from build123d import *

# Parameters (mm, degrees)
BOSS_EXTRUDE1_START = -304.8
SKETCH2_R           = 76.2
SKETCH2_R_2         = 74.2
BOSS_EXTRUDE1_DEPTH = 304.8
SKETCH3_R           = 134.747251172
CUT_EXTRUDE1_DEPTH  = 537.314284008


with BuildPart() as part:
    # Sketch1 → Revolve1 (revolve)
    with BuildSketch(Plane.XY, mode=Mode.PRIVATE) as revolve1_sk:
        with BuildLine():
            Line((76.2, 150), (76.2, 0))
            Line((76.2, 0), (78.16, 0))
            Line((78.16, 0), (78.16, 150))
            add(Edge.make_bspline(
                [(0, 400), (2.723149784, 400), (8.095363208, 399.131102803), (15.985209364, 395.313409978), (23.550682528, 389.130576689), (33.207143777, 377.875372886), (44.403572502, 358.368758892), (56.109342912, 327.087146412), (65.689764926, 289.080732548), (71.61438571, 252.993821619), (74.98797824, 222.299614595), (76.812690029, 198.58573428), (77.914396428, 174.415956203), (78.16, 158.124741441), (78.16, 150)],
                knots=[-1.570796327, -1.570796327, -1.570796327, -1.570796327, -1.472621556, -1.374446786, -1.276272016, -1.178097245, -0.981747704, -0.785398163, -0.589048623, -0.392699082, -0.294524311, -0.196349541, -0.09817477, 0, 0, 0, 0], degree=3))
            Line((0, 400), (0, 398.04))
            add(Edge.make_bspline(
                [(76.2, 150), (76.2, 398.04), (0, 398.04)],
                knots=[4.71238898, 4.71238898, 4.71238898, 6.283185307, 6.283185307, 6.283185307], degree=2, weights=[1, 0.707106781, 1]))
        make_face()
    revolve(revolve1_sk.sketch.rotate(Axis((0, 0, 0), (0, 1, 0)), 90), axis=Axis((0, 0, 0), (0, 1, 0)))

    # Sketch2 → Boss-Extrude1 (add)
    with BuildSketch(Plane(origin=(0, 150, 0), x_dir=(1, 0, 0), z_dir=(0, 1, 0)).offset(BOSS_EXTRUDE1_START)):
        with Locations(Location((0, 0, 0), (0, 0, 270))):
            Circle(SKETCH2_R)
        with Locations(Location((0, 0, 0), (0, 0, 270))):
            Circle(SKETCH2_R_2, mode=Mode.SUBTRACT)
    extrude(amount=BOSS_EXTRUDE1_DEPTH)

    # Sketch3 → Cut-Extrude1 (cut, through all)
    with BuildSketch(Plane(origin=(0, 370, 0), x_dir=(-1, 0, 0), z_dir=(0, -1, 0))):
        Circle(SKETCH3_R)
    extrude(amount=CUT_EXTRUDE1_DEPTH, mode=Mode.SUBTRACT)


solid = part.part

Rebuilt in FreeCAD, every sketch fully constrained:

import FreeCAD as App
import Part
import Sketcher

V = App.Vector
Q = App.Units.Quantity

doc = App.newDocument("Part")
params = doc.addObject("Spreadsheet::Sheet", "Params")
for row, (alias, value) in enumerate([
    ("revolution_angle", "360 deg"),
    ("sketch2_diameter", "152.4 mm"),
    ("sketch2_diameter2", "148.4 mm"),
    ("pad1_length", "304.8 mm"),
], start=1):
    params.set(f"A{row}", alias)
    params.set(f"B{row}", "=" + value)
    params.setAlias(f"B{row}", alias)

body = doc.addObject("PartDesign::Body", "Body")

sketch1 = body.newObject("Sketcher::SketchObject", "Sketch")
sketch1.AttachmentSupport = (doc.getObject("XY_Plane"), [""])
sketch1.MapMode = "FlatFace"
sketch1.addGeometry([
    Part.LineSegment(V(76.2, 150, 0), V(76.2, 0, 0)),
    Part.LineSegment(V(76.2, 0, 0), V(78.16, 0, 0)),
    Part.LineSegment(V(78.16, 0, 0), V(78.16, 150, 0)),
    Part.BSplineCurve([V(0, 400, 0), V(2.72315, 400, 0), V(8.095363, 399.131103, 0), V(15.985209, 395.31341, 0), V(23.550683, 389.130577, 0), V(33.207144, 377.875373, 0), V(44.403573, 358.368759, 0), V(56.109343, 327.087146, 0), V(65.689765, 289.080733, 0), V(71.614386, 252.993822, 0), V(74.987978, 222.299615, 0), V(76.81269, 198.585734, 0), V(77.914396, 174.415956, 0), V(78.16, 158.124741, 0), V(78.16, 150, 0)], [4, 1, 1, 1, 1, 1, 1, 1, 1, 1, 1, 1, 4], [-1.570796327, -1.472621556, -1.374446786, -1.276272016, -1.178097245, -0.981747704, -0.785398163, -0.589048623, -0.392699082, -0.294524311, -0.196349541, -0.09817477, 0], False, 3, [1, 1, 1, 1, 1, 1, 1, 1, 1, 1, 1, 1, 1, 1, 1], False),
    Part.LineSegment(V(0, 400, 0), V(0, 398.04, 0)),
    Part.BSplineCurve([V(76.2, 150, 0), V(76.2, 398.04, 0), V(0, 398.04, 0)], [3, 3], [4.71238898, 6.283185307], False, 2, [1, 0.707106781, 1], False),
], False)
sketch1.addConstraint([
    Sketcher.Constraint("Block", 3),
    Sketcher.Constraint("Block", 5),
    Sketcher.Constraint("Coincident", 0, 2, 1, 1),
    Sketcher.Constraint("Coincident", 1, 2, 2, 1),
    Sketcher.Constraint("Coincident", 2, 2, 3, 2),
    Sketcher.Constraint("Coincident", 3, 1, 4, 1),
    Sketcher.Constraint("Coincident", 4, 2, 5, 2),
    Sketcher.Constraint("Coincident", 5, 1, 0, 1),
    Sketcher.Constraint("Vertical", 0),
    Sketcher.Constraint("Horizontal", 1),
    Sketcher.Constraint("Vertical", 2),
    Sketcher.Constraint("PointOnObject", 0, 2, -1),
])
revolution = body.newObject("PartDesign::Revolution", "Revolution")
revolution.Profile = sketch1
revolution.ReferenceAxis = (sketch1, ["V_Axis"])
revolution.setExpression("Angle", "Params.revolution_angle")

sketch2 = body.newObject("Sketcher::SketchObject", "Sketch001")
sketch2.AttachmentSupport = (doc.getObject("XZ_Plane"), [""])
sketch2.MapMode = "FlatFace"
sketch2.AttachmentOffset = App.Placement(V(0, 0, 154.8), App.Rotation())
sketch2.addGeometry([
    Part.Circle(V(0, 0, 0), V(0, 0, 1), 76.2),
    Part.Circle(V(0, 0, 0), V(0, 0, 1), 74.2),
], False)
sketch2.addConstraint([
    Sketcher.Constraint("Coincident", 0, 3, -1, 1),
    Sketcher.Constraint("Coincident", 1, 3, -1, 1),
    Sketcher.Constraint("Diameter", 0, Q("152.4 mm")),
    Sketcher.Constraint("Diameter", 1, Q("148.4 mm")),
])
sketch2.setExpression("Constraints[2]", "Params.sketch2_diameter")
sketch2.setExpression("Constraints[3]", "Params.sketch2_diameter2")
pad1 = body.newObject("PartDesign::Pad", "Pad")
pad1.Profile = sketch2
pad1.setExpression("Length", "Params.pad1_length")
pad1.Reversed = True

sketch3 = body.newObject("Sketcher::SketchObject", "Sketch002")
sketch3.AttachmentSupport = (doc.getObject("XZ_Plane"), [""])
sketch3.MapMode = "FlatFace"
sketch3.AttachmentOffset = App.Placement(V(0, 0, -370), App.Rotation())
sketch3.addGeometry(Part.Circle(V(0, 0, 0), V(0, 0, 1), 134.747251), False)
sketch3.addConstraint([
    Sketcher.Constraint("Coincident", 0, 3, -1, 1),
    Sketcher.Constraint("Diameter", 0, Q("269.494502 mm")),
])
pocket1 = body.newObject("PartDesign::Pocket", "Pocket")
pocket1.Profile = sketch3
pocket1.Type = "ThroughAll"
pocket1.Reversed = True

doc.recompute()
